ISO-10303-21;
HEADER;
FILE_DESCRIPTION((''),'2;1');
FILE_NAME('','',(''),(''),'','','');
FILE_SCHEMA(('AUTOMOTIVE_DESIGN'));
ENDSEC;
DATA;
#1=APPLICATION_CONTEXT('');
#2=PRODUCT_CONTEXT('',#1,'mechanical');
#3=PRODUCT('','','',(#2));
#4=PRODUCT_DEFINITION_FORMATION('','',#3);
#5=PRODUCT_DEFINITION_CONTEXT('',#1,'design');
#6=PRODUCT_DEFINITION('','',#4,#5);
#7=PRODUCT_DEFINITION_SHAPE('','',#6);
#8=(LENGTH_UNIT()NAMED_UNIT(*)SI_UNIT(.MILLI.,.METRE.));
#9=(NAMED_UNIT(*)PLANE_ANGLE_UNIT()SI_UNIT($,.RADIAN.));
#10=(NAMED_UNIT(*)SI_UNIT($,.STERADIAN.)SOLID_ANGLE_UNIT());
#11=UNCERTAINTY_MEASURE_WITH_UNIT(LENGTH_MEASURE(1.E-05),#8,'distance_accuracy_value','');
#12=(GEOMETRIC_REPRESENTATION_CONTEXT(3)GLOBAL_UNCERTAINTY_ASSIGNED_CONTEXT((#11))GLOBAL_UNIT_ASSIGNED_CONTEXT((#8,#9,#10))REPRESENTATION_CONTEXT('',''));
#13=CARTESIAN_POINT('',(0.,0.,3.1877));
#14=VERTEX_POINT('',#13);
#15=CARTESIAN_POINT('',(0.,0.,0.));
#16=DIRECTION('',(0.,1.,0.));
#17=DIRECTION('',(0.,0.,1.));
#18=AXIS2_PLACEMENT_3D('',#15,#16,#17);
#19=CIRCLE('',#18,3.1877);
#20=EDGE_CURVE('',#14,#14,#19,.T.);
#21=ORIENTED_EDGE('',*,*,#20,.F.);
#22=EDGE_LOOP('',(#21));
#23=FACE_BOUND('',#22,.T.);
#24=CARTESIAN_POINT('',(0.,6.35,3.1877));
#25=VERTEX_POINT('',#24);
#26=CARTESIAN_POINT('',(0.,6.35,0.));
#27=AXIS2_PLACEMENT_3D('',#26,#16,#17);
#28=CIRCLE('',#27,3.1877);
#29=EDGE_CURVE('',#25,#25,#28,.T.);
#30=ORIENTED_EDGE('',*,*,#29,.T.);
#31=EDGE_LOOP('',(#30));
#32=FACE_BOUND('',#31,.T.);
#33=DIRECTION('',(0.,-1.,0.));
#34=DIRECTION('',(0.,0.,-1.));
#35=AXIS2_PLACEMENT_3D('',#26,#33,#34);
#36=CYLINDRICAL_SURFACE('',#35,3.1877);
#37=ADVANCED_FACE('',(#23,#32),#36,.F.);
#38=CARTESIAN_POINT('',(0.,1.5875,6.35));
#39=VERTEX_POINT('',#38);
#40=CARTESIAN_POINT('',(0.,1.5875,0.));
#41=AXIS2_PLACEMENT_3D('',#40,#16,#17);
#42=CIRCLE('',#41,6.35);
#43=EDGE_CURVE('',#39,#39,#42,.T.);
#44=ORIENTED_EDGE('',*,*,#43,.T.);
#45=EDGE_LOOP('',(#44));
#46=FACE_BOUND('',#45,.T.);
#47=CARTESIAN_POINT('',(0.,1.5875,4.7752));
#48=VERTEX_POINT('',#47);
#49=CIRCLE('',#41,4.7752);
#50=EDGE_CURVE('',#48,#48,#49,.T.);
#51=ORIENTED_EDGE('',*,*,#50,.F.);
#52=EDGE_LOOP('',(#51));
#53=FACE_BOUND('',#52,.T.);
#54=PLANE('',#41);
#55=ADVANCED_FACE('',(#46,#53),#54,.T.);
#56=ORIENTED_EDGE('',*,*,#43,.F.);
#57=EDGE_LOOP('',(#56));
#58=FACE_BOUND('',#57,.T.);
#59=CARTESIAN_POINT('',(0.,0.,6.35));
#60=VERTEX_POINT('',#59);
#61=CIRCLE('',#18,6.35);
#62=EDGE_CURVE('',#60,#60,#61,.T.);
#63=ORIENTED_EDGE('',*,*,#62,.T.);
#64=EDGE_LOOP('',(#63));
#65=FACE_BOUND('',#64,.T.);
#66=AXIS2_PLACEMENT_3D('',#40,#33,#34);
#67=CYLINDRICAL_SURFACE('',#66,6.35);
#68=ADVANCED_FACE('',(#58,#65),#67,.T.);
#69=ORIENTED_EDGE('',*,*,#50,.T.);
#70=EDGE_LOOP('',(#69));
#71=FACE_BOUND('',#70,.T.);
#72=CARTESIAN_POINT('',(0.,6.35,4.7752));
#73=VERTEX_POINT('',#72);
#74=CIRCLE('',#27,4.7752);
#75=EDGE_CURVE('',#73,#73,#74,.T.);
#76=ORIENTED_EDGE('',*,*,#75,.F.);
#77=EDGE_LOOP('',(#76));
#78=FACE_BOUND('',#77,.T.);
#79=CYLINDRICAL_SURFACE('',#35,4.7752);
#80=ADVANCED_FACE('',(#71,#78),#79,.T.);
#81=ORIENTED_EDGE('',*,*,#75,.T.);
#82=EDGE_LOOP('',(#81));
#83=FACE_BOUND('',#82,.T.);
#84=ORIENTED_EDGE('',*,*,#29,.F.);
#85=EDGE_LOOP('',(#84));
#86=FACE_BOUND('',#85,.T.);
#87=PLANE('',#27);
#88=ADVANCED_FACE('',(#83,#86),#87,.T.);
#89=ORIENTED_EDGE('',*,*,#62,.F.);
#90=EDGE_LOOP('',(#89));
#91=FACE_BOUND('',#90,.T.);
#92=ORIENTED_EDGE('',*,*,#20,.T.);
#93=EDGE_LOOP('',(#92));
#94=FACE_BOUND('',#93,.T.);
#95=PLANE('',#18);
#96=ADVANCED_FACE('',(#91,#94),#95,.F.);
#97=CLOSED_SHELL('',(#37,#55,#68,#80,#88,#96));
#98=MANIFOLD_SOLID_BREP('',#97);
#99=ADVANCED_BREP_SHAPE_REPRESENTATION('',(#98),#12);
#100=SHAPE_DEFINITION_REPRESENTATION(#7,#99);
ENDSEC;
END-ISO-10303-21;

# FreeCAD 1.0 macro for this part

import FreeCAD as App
import Part
import Sketcher
from FreeCAD import Vector
Q = App.Units.Quantity

doc = App.newDocument("Part")
body = doc.addObject("PartDesign::Body", "Body")

# Sketch on XZ plane
sketch1 = body.newObject("Sketcher::SketchObject", "Sketch")
sketch1.AttachmentSupport = (doc.getObject("XZ_Plane"), [""])
sketch1.MapMode = "FlatFace"
sketch1.addGeometry([
    Part.Circle(Vector(0, 0, 0), Vector(0, 0, 1), 4.8),
    Part.Circle(Vector(0, 0, 0), Vector(0, 0, 1), 3.2),
], False)
sketch1.addConstraint([
    Sketcher.Constraint("Coincident", 0, 3, -1, 1),
    Sketcher.Constraint("Coincident", 1, 3, -1, 1),
    Sketcher.Constraint("Diameter", 0, Q("0.376 in")),
    Sketcher.Constraint("Diameter", 1, Q("0.251 in")),
])
pad1 = body.newObject("PartDesign::Pad", "Pad")
pad1.Profile = sketch1
pad1.Length = Q("0.25 in")
pad1.Reversed = True

# Sketch on XZ plane
sketch2 = body.newObject("Sketcher::SketchObject", "Sketch001")
sketch2.AttachmentSupport = (doc.getObject("XZ_Plane"), [""])
sketch2.MapMode = "FlatFace"
sketch2.addGeometry([
    Part.Circle(Vector(0, 0, 0), Vector(0, 0, 1), 6.3),
    Part.Circle(Vector(0, 0, 0), Vector(0, 0, 1), 4.8),
], False)
sketch2.addConstraint([
    Sketcher.Constraint("Coincident", 0, 3, -1, 1),
    Sketcher.Constraint("Coincident", 1, 3, -1, 1),
    Sketcher.Constraint("Diameter", 0, Q("0.5 in")),
    Sketcher.Constraint("Diameter", 1, Q("0.376 in")),
])
pad2 = body.newObject("PartDesign::Pad", "Pad001")
pad2.Profile = sketch2
pad2.Length = Q("0.0625 in")
pad2.Reversed = True

doc.recompute()
